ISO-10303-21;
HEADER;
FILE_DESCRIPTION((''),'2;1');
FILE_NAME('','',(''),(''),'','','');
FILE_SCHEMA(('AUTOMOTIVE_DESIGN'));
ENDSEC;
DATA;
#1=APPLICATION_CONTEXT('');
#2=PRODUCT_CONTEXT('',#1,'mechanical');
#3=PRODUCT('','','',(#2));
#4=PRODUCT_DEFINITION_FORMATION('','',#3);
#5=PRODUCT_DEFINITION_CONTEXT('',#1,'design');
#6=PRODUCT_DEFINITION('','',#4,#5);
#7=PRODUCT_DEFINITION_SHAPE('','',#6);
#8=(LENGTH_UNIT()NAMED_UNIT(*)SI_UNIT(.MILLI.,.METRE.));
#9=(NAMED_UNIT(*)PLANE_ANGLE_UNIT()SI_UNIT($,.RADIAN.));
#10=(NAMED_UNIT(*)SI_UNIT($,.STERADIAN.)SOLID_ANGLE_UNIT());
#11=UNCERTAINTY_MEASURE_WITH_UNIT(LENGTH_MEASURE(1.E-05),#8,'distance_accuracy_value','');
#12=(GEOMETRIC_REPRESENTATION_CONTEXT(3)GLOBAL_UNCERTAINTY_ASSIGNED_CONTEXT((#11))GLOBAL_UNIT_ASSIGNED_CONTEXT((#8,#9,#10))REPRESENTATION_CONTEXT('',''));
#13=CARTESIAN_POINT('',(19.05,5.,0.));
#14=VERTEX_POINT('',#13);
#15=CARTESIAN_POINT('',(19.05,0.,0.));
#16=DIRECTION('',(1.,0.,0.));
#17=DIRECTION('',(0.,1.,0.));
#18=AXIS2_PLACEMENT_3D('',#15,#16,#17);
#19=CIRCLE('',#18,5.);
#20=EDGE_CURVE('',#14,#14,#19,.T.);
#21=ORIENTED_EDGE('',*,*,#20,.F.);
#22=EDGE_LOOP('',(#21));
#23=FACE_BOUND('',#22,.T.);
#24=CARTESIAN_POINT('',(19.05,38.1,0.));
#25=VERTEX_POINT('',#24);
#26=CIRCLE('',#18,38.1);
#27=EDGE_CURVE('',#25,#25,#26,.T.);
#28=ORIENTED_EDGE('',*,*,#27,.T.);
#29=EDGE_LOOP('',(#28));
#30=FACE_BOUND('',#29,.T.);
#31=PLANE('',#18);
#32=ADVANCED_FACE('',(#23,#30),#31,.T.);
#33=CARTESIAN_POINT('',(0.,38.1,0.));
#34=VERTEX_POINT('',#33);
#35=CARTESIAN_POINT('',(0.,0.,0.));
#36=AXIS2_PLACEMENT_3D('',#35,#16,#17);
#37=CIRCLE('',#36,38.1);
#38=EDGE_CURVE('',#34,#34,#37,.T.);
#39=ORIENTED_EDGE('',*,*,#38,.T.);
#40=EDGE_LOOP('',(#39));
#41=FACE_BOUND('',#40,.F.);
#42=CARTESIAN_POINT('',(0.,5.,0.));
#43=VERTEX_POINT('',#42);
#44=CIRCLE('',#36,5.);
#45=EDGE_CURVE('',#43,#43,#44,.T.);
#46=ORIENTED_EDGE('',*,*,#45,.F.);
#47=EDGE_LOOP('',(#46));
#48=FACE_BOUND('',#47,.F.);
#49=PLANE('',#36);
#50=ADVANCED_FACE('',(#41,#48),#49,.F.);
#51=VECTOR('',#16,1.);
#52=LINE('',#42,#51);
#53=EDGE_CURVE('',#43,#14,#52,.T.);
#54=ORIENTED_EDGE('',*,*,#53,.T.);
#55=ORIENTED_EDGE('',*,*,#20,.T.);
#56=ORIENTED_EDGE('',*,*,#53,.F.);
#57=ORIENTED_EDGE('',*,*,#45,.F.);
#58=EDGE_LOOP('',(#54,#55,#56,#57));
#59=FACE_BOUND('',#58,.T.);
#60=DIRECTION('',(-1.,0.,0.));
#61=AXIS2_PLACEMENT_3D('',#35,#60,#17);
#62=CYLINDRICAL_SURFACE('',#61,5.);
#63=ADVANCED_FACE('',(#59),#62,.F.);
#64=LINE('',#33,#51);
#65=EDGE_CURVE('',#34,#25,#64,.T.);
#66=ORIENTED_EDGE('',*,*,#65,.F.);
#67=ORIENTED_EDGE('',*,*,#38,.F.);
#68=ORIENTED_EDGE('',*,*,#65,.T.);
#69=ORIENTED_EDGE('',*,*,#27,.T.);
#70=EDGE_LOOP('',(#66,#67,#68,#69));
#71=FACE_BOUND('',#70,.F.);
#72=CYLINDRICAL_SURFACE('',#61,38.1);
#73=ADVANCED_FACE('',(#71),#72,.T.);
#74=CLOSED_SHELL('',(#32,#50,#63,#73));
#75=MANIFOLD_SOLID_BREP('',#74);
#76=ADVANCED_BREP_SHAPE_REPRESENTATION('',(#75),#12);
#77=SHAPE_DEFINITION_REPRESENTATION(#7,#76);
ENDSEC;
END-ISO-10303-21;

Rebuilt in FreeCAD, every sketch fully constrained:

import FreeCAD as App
import Part
import Sketcher
from FreeCAD import Vector
Q = App.Units.Quantity

doc = App.newDocument("Part")
body = doc.addObject("PartDesign::Body", "Body")

sketch1 = body.newObject("Sketcher::SketchObject", "Sketch")
sketch1.AttachmentSupport = (doc.getObject("YZ_Plane"), [""])
sketch1.MapMode = "FlatFace"
sketch1.addGeometry(Part.Circle(Vector(0, 0, 0), Vector(0, 0, 1), 38.1), False)
sketch1.addGeometry(Part.Circle(Vector(0, 0, 0), Vector(0, 0, 1), 5), False)
sketch1.addConstraint(Sketcher.Constraint("Coincident", 0, 3, -1, 1))
sketch1.addConstraint(Sketcher.Constraint("Coincident", 1, 3, -1, 1))
sketch1.addConstraint(Sketcher.Constraint("Diameter", 0, Q("3 in")))
sketch1.addConstraint(Sketcher.Constraint("Diameter", 1, Q("0.3937 in")))
pad1 = body.newObject("PartDesign::Pad", "Pad")
pad1.Profile = sketch1
pad1.Length = Q("0.75 in")

doc.recompute()
